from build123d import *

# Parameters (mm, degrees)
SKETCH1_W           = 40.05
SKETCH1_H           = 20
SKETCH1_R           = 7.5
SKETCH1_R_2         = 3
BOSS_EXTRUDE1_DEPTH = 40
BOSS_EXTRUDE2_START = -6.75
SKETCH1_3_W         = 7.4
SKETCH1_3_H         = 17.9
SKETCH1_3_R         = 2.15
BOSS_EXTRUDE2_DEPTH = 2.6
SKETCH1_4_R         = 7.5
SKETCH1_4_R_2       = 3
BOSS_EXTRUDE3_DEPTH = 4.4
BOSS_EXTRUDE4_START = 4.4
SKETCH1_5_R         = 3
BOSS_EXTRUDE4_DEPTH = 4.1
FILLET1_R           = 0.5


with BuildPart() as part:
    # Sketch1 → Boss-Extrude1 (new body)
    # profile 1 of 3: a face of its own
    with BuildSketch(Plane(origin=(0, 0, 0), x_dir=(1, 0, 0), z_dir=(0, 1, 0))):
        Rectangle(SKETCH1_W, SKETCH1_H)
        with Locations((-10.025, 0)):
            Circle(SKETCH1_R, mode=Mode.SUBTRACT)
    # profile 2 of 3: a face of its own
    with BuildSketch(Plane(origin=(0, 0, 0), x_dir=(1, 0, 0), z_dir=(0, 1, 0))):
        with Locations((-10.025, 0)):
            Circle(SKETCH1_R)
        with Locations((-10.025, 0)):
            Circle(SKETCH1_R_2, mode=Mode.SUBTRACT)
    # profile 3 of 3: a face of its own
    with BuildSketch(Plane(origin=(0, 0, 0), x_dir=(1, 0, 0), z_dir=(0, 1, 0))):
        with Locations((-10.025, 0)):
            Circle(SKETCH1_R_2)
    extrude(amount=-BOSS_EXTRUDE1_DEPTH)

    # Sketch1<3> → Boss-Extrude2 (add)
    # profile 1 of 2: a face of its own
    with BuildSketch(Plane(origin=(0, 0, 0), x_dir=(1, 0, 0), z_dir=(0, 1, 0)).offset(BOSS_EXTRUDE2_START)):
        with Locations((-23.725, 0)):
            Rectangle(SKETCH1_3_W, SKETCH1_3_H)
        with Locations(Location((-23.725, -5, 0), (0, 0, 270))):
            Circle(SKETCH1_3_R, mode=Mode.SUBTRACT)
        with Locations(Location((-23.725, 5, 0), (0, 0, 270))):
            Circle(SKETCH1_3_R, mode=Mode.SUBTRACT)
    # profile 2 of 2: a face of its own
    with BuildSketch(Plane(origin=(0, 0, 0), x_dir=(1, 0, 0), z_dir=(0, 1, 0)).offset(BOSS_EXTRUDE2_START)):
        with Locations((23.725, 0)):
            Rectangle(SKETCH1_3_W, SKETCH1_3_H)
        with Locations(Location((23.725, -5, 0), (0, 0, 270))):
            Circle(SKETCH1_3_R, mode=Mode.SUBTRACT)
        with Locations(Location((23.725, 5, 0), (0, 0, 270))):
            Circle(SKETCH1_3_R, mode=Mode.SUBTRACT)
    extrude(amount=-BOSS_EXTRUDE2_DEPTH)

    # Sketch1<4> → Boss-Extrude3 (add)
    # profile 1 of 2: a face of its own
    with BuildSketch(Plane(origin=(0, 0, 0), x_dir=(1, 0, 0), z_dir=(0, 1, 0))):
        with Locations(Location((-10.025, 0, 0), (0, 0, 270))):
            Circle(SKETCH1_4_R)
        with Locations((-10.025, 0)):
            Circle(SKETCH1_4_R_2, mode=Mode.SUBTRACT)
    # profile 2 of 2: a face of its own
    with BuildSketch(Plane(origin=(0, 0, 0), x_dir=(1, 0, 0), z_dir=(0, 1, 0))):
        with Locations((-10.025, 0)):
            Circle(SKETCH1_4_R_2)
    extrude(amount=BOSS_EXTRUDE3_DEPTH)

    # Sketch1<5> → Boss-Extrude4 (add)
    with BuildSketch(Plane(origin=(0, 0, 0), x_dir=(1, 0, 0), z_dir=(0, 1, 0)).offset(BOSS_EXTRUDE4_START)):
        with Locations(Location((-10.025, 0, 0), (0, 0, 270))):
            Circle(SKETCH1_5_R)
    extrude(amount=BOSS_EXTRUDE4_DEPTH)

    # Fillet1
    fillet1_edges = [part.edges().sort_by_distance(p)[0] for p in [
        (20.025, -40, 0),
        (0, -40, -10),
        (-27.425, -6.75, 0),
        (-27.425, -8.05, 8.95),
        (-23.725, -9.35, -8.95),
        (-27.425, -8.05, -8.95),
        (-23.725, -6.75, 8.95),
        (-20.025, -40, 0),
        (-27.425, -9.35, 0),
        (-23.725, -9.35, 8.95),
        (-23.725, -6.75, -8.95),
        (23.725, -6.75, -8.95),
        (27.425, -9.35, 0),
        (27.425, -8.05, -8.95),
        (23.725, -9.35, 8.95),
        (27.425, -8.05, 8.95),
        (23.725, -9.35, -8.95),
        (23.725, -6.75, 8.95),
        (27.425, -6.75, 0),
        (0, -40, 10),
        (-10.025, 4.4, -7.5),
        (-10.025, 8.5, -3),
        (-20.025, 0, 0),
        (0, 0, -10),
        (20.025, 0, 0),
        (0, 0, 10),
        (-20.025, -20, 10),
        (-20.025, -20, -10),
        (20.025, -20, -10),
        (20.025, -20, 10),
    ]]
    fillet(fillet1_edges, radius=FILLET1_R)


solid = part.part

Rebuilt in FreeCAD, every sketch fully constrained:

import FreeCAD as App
import Part
import Sketcher
Q = App.Units.Quantity


def edges_at(feature, points):
    """Names of the edges that pass closest to the given points."""
    edges = feature.Shape.Edges
    near = lambda p: min(range(len(edges)), key=lambda i: edges[i].distToShape(Part.Vertex(*p))[0])
    return sorted({f"Edge{near(p) + 1}" for p in points})

doc = App.newDocument("Part")
params = doc.addObject("Spreadsheet::Sheet", "Params")
for row, (alias, value) in enumerate([
    ("sketch1_height", "20 mm"),
    ("sketch1_width", "40.05 mm"),
    ("pad1_length", "40 mm"),
    ("sketch2_diameter", "4.3 mm"),
    ("sketch2_width", "7.4 mm"),
    ("sketch2_height", "17.9 mm"),
    ("pad2_length", "2.6 mm"),
    ("sketch3_diameter", "15 mm"),
    ("pad3_length", "4.4 mm"),
    ("sketch4_diameter", "6 mm"),
    ("pad4_length", "4.1 mm"),
    ("fillet_radius", "0.5 mm"),
], start=1):
    params.set(f"A{row}", alias)
    params.set(f"B{row}", "=" + value)
    params.setAlias(f"B{row}", alias)

body = doc.addObject("PartDesign::Body", "Body")

# Sketch on XZ plane
sketch1 = doc.addObject("Sketcher::SketchObject", "Sketch")
body.addObject(sketch1)
sketch1.AttachmentSupport = (doc.XZ_Plane, [""])
sketch1.MapMode = "FlatFace"
sketch1.addGeometry(Part.LineSegment(App.Vector(-20, -10, 0), App.Vector(-20, 10, 0)), False)
sketch1.addGeometry(Part.LineSegment(App.Vector(-20, 10, 0), App.Vector(20, 10, 0)), False)
sketch1.addGeometry(Part.LineSegment(App.Vector(20, 10, 0), App.Vector(20, -10, 0)), False)
sketch1.addGeometry(Part.LineSegment(App.Vector(20, -10, 0), App.Vector(-20, -10, 0)), False)
sketch1.addConstraint(Sketcher.Constraint("Coincident", 0, 2, 1, 1))
sketch1.addConstraint(Sketcher.Constraint("Coincident", 1, 2, 2, 1))
sketch1.addConstraint(Sketcher.Constraint("Coincident", 2, 2, 3, 1))
sketch1.addConstraint(Sketcher.Constraint("Coincident", 3, 2, 0, 1))
sketch1.addConstraint(Sketcher.Constraint("Vertical", 0))
sketch1.addConstraint(Sketcher.Constraint("Horizontal", 1))
sketch1.addConstraint(Sketcher.Constraint("Vertical", 2))
sketch1.addConstraint(Sketcher.Constraint("Horizontal", 3))
sketch1.addConstraint(Sketcher.Constraint("Symmetric", 0, 2, 2, 2, -1, 1))
sketch1.addConstraint(Sketcher.Constraint("DistanceY", 0, 1, 0, 2, Q("20 mm")))
sketch1.addConstraint(Sketcher.Constraint("DistanceX", 1, 1, 1, 2, Q("40.05 mm")))
sketch1.setExpression("Constraints[9]", "Params.sketch1_height")
sketch1.setExpression("Constraints[10]", "Params.sketch1_width")
pad1 = doc.addObject("PartDesign::Pad", "Pad")
body.addObject(pad1)
pad1.Profile = sketch1
pad1.setExpression("Length", "Params.pad1_length")

# Sketch on XZ plane
sketch2 = doc.addObject("Sketcher::SketchObject", "Sketch001")
body.addObject(sketch2)
sketch2.AttachmentSupport = (doc.XZ_Plane, [""])
sketch2.MapMode = "FlatFace"
sketch2.AttachmentOffset = App.Placement(App.Vector(0, 0, 6.75), App.Rotation())
sketch2.addGeometry(Part.LineSegment(App.Vector(-27.4, -8.9, 0), App.Vector(-27.4, 8.9, 0)), False)
sketch2.addGeometry(Part.LineSegment(App.Vector(-27.4, 8.9, 0), App.Vector(-20, 8.9, 0)), False)
sketch2.addGeometry(Part.LineSegment(App.Vector(-20, 8.9, 0), App.Vector(-20, -8.9, 0)), False)
sketch2.addGeometry(Part.LineSegment(App.Vector(-20, -8.9, 0), App.Vector(-27.4, -8.9, 0)), False)
sketch2.addGeometry(Part.Circle(App.Vector(-23.7, 5, 0), App.Vector(0, 0, 1), 2.1), False)
sketch2.addGeometry(Part.Circle(App.Vector(-23.7, -5, 0), App.Vector(0, 0, 1), 2.1), False)
sketch2.addGeometry(Part.LineSegment(App.Vector(20, -8.9, 0), App.Vector(20, 8.9, 0)), False)
sketch2.addGeometry(Part.LineSegment(App.Vector(20, 8.9, 0), App.Vector(27.4, 8.9, 0)), False)
sketch2.addGeometry(Part.LineSegment(App.Vector(27.4, 8.9, 0), App.Vector(27.4, -8.9, 0)), False)
sketch2.addGeometry(Part.LineSegment(App.Vector(27.4, -8.9, 0), App.Vector(20, -8.9, 0)), False)
sketch2.addGeometry(Part.Circle(App.Vector(23.7, 5, 0), App.Vector(0, 0, 1), 2.1), False)
sketch2.addGeometry(Part.Circle(App.Vector(23.7, -5, 0), App.Vector(0, 0, 1), 2.1), False)
sketch2.addConstraint(Sketcher.Constraint("Coincident", 0, 2, 1, 1))
sketch2.addConstraint(Sketcher.Constraint("Coincident", 1, 2, 2, 1))
sketch2.addConstraint(Sketcher.Constraint("Coincident", 2, 2, 3, 1))
sketch2.addConstraint(Sketcher.Constraint("Coincident", 3, 2, 0, 1))
sketch2.addConstraint(Sketcher.Constraint("Coincident", 6, 2, 7, 1))
sketch2.addConstraint(Sketcher.Constraint("Coincident", 7, 2, 8, 1))
sketch2.addConstraint(Sketcher.Constraint("Coincident", 8, 2, 9, 1))
sketch2.addConstraint(Sketcher.Constraint("Coincident", 9, 2, 6, 1))
sketch2.addConstraint(Sketcher.Constraint("Vertical", 0))
sketch2.addConstraint(Sketcher.Constraint("Horizontal", 1))
sketch2.addConstraint(Sketcher.Constraint("Vertical", 2))
sketch2.addConstraint(Sketcher.Constraint("Horizontal", 3))
sketch2.addConstraint(Sketcher.Constraint("Vertical", 6))
sketch2.addConstraint(Sketcher.Constraint("Horizontal", 7))
sketch2.addConstraint(Sketcher.Constraint("Vertical", 8))
sketch2.addConstraint(Sketcher.Constraint("Horizontal", 9))
sketch2.addConstraint(Sketcher.Constraint("Equal", 4, 5))
sketch2.addConstraint(Sketcher.Constraint("Equal", 5, 10))
sketch2.addConstraint(Sketcher.Constraint("Equal", 10, 11))
sketch2.addConstraint(Sketcher.Constraint("Symmetric", 5, 3, 10, 3, -1, 1))
sketch2.addConstraint(Sketcher.Constraint("Symmetric", 4, 3, 11, 3, -1, 1))
sketch2.addConstraint(Sketcher.Constraint("Symmetric", 2, 2, 6, 2, -1, 1))
sketch2.addConstraint(Sketcher.Constraint("Symmetric", 0, 2, 8, 2, -1, 1))
sketch2.addConstraint(Sketcher.Constraint("Symmetric", 4, 3, 10, 3, -2))
sketch2.addConstraint(Sketcher.Constraint("Horizontal", 1, 2, 6, 2))
sketch2.addConstraint(Sketcher.Constraint("Diameter", 4, Q("4.3 mm")))
sketch2.addConstraint(Sketcher.Constraint("DistanceX", 1, 1, 1, 2, Q("7.4 mm")))
sketch2.addConstraint(Sketcher.Constraint("DistanceY", 0, 1, 0, 2, Q("17.9 mm")))
sketch2.addConstraint(Sketcher.Constraint("DistanceY", -1, 1, 4, 3, Q("5 mm")))
sketch2.addConstraint(Sketcher.Constraint("DistanceX", 0, 2, 4, 3, Q("3.7 mm")))
sketch2.addConstraint(Sketcher.Constraint("DistanceX", 4, 3, 10, 3, Q("47.45 mm")))
sketch2.setExpression("Constraints[25]", "Params.sketch2_diameter")
sketch2.setExpression("Constraints[26]", "Params.sketch2_width")
sketch2.setExpression("Constraints[27]", "Params.sketch2_height")
pad2 = doc.addObject("PartDesign::Pad", "Pad001")
body.addObject(pad2)
pad2.Profile = sketch2
pad2.setExpression("Length", "Params.pad2_length")

# Sketch on XZ plane
sketch3 = doc.addObject("Sketcher::SketchObject", "Sketch002")
body.addObject(sketch3)
sketch3.AttachmentSupport = (doc.XZ_Plane, [""])
sketch3.MapMode = "FlatFace"
sketch3.addGeometry(Part.Circle(App.Vector(-10, 0, 0), App.Vector(0, 0, 1), 8), False)
sketch3.addConstraint(Sketcher.Constraint("PointOnObject", 0, 3, -1))
sketch3.addConstraint(Sketcher.Constraint("Diameter", 0, Q("15 mm")))
sketch3.addConstraint(Sketcher.Constraint("DistanceX", 0, 3, -1, 1, Q("10.025 mm")))
sketch3.setExpression("Constraints[1]", "Params.sketch3_diameter")
pad3 = doc.addObject("PartDesign::Pad", "Pad002")
body.addObject(pad3)
pad3.Profile = sketch3
pad3.setExpression("Length", "Params.pad3_length")
pad3.Reversed = True

# Sketch on XZ plane
sketch4 = doc.addObject("Sketcher::SketchObject", "Sketch003")
body.addObject(sketch4)
sketch4.AttachmentSupport = (doc.XZ_Plane, [""])
sketch4.MapMode = "FlatFace"
sketch4.AttachmentOffset = App.Placement(App.Vector(0, 0, -4.4), App.Rotation())
sketch4.addGeometry(Part.Circle(App.Vector(-10, 0, 0), App.Vector(0, 0, 1), 3), False)
sketch4.addConstraint(Sketcher.Constraint("PointOnObject", 0, 3, -1))
sketch4.addConstraint(Sketcher.Constraint("Diameter", 0, Q("6 mm")))
sketch4.addConstraint(Sketcher.Constraint("DistanceX", 0, 3, -1, 1, Q("10.025 mm")))
sketch4.setExpression("Constraints[1]", "Params.sketch4_diameter")
pad4 = doc.addObject("PartDesign::Pad", "Pad003")
body.addObject(pad4)
pad4.Profile = sketch4
pad4.setExpression("Length", "Params.pad4_length")
pad4.Reversed = True
doc.recompute()

fillet = doc.addObject("PartDesign::Fillet", "Fillet")
body.addObject(fillet)
fillet.Base = (pad4, edges_at(pad4, [
    (20.025, -40, 0),
    (0, -40, -10),
    (-27.425, -6.75, 0),
    (-27.425, -8.05, 8.95),
    (-23.725, -9.35, -8.95),
    (-27.425, -8.05, -8.95),
    (-23.725, -6.75, 8.95),
    (-20.025, -40, 0),
    (-27.425, -9.35, 0),
    (-23.725, -9.35, 8.95),
    (-23.725, -6.75, -8.95),
    (23.725, -6.75, -8.95),
    (27.425, -9.35, 0),
    (27.425, -8.05, -8.95),
    (23.725, -9.35, 8.95),
    (27.425, -8.05, 8.95),
    (23.725, -9.35, -8.95),
    (23.725, -6.75, 8.95),
    (27.425, -6.75, 0),
    (0, -40, 10),
    (-10.025, 4.4, -7.5),
    (-10.025, 8.5, -3),
    (-20.025, 0, 0),
    (0, 0, -10),
    (20.025, 0, 0),
    (0, 0, 10),
    (-20.025, -20, 10),
    (-20.025, -20, -10),
    (20.025, -20, -10),
    (20.025, -20, 10),
]))
fillet.setExpression("Radius", "Params.fillet_radius")

doc.recompute()
